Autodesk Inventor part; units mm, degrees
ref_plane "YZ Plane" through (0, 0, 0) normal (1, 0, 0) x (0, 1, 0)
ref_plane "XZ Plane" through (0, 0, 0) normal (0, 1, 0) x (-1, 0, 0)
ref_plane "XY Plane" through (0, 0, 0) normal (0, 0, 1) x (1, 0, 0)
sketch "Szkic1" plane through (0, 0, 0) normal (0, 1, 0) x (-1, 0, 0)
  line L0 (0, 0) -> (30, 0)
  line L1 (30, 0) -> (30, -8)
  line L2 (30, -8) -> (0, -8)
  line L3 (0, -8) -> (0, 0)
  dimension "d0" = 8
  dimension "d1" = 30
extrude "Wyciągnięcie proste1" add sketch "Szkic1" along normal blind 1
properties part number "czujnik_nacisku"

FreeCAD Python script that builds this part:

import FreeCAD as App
import Part
import Sketcher
from FreeCAD import Vector

doc = App.newDocument("Part")
params = doc.addObject("Spreadsheet::Sheet", "Params")
for row, (alias, value) in enumerate([
    ("sketch1_width", "30 mm"),
    ("sketch1_height", "8 mm"),
    ("pad1_length", "1 mm"),
], start=1):
    params.set(f"A{row}", alias)
    params.set(f"B{row}", "=" + value)
    params.setAlias(f"B{row}", alias)

body = doc.addObject("PartDesign::Body", "Body")

sketch1 = body.newObject("Sketcher::SketchObject", "Sketch")
sketch1.AttachmentSupport = (doc.getObject("XZ_Plane"), [""])
sketch1.MapMode = "FlatFace"
sketch1.addGeometry([
    Part.LineSegment(Vector(-30, 0, 0), Vector(0, 0, 0)),
    Part.LineSegment(Vector(0, 0, 0), Vector(0, -8, 0)),
    Part.LineSegment(Vector(0, -8, 0), Vector(-30, -8, 0)),
    Part.LineSegment(Vector(-30, -8, 0), Vector(-30, 0, 0)),
], False)
sketch1.addConstraint([
    Sketcher.Constraint("Coincident", 0, 2, 1, 1),
    Sketcher.Constraint("Coincident", 1, 2, 2, 1),
    Sketcher.Constraint("Coincident", 2, 2, 3, 1),
    Sketcher.Constraint("Coincident", 3, 2, 0, 1),
    Sketcher.Constraint("Horizontal", 0),
    Sketcher.Constraint("Vertical", 1),
    Sketcher.Constraint("Horizontal", 2),
    Sketcher.Constraint("Vertical", 3),
    Sketcher.Constraint("Coincident", 0, 2, -1, 1),
    Sketcher.Constraint("DistanceX", 0, 1, 0, 2, 30.0),
    Sketcher.Constraint("DistanceY", 1, 2, 1, 1, 8.0),
])
sketch1.setExpression("Constraints[9]", "Params.sketch1_width")
sketch1.setExpression("Constraints[10]", "Params.sketch1_height")
pad1 = body.newObject("PartDesign::Pad", "Pad")
pad1.Profile = sketch1
pad1.setExpression("Length", "Params.pad1_length")
pad1.Reversed = True

doc.recompute()
